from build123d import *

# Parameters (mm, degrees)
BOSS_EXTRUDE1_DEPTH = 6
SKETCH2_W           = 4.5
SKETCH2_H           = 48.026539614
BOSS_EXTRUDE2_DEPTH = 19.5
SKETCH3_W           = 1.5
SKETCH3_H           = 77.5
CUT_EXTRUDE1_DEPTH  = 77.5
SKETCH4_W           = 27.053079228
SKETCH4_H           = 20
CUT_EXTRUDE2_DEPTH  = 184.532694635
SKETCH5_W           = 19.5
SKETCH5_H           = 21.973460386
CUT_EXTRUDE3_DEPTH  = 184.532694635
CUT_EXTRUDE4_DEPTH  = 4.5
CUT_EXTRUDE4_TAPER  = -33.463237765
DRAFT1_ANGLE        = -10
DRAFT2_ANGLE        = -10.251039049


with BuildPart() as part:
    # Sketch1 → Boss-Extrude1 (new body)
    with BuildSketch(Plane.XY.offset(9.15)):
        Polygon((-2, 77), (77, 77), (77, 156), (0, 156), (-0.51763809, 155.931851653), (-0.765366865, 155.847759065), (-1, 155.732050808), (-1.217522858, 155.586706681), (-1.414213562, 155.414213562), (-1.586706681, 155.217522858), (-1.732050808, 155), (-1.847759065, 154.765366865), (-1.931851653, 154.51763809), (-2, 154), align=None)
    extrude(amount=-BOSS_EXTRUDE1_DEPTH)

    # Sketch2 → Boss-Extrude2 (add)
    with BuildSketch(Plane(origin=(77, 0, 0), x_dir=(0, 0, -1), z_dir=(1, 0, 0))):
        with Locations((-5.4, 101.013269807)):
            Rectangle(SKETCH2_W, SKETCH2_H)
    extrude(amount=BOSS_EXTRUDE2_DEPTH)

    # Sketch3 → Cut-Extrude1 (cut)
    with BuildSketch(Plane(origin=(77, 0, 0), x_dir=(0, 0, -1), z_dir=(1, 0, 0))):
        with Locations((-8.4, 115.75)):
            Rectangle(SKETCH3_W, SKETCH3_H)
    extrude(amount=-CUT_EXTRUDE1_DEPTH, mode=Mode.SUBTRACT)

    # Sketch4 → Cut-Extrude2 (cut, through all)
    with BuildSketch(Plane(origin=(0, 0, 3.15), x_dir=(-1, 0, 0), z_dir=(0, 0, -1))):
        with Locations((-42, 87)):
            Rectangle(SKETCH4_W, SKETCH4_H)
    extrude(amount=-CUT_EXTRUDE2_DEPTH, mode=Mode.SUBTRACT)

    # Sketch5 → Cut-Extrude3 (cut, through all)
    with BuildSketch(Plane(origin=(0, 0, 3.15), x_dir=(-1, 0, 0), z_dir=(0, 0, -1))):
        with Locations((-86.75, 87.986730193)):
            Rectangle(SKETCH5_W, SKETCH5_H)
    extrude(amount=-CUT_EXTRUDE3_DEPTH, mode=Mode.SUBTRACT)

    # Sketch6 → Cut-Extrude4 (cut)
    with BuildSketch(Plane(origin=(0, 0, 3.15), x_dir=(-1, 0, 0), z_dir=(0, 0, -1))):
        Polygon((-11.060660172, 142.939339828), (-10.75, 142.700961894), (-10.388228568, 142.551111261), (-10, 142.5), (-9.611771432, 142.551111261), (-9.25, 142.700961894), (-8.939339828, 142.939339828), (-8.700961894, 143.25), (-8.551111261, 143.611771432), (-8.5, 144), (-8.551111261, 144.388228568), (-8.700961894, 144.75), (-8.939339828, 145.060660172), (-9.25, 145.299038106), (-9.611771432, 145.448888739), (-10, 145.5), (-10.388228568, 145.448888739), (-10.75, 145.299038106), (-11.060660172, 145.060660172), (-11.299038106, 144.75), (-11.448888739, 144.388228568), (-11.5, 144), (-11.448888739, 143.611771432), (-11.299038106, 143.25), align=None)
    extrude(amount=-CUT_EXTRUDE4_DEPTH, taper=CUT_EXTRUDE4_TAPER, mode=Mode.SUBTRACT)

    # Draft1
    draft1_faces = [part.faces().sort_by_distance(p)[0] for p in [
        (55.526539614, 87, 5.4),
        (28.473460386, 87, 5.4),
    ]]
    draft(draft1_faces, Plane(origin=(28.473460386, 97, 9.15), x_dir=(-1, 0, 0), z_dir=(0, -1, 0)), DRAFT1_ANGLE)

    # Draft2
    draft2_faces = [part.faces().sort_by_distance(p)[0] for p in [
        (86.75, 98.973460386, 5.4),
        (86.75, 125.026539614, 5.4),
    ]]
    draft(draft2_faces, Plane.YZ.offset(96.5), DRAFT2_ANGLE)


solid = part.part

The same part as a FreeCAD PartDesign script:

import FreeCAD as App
import Part
import Sketcher
from FreeCAD import Vector
Q = App.Units.Quantity


def faces_at(feature, points):
    """Names of the faces that lie closest to the given points."""
    faces = feature.Shape.Faces
    near = lambda p: min(range(len(faces)), key=lambda i: faces[i].distToShape(Part.Vertex(*p))[0])
    return sorted({f"Face{near(p) + 1}" for p in points})

doc = App.newDocument("Part")
params = doc.addObject("Spreadsheet::Sheet", "Params")
for row, (alias, value) in enumerate([
    ("sketch1_width", "79 mm"),
    ("sketch1_width2", "77 mm"),
    ("pad1_length", "6 mm"),
    ("sketch2_height", "4.5 mm"),
    ("pad2_length", "19.5 mm"),
    ("sketch3_width", "77.5 mm"),
    ("sketch3_height", "1.5 mm"),
    ("pocket1_length", "77.5 mm"),
    ("sketch4_height", "20 mm"),
    ("sketch5_width", "19.5 mm"),
    ("pocket4_length", "4.5 mm"),
    ("pocket4_taper", "33.463238 deg"),
    ("draft_angle", "10 deg"),
    ("draft2_angle", "10.251039 deg"),
], start=1):
    params.set(f"A{row}", alias)
    params.set(f"B{row}", "=" + value)
    params.setAlias(f"B{row}", alias)

body = doc.addObject("PartDesign::Body", "Body")

# Sketch on XY plane
sketch1 = doc.addObject("Sketcher::SketchObject", "Sketch")
body.addObject(sketch1)
sketch1.AttachmentSupport = (doc.XY_Plane, [""])
sketch1.MapMode = "FlatFace"
sketch1.AttachmentOffset = App.Placement(Vector(0, 0, 9.15), App.Rotation())
sketch1.addGeometry([
    Part.LineSegment(Vector(-2, 77, 0), Vector(77, 77, 0)),  # 0
    Part.LineSegment(Vector(77, 77, 0), Vector(77, 156, 0)),  # 1
    Part.LineSegment(Vector(77, 156, 0), Vector(0, 156, 0)),  # 2
    Part.LineSegment(Vector(0, 156, 0), Vector(-0.52, 155.93, 0)),  # 3
    Part.LineSegment(Vector(-0.52, 155.93, 0), Vector(-0.77, 155.85, 0)),  # 4
    Part.LineSegment(Vector(-0.77, 155.85, 0), Vector(-1, 155.73, 0)),  # 5
    Part.LineSegment(Vector(-1, 155.73, 0), Vector(-1.22, 155.59, 0)),  # 6
    Part.LineSegment(Vector(-1.22, 155.59, 0), Vector(-1.41, 155.41, 0)),  # 7
    Part.LineSegment(Vector(-1.41, 155.41, 0), Vector(-1.59, 155.22, 0)),  # 8
    Part.LineSegment(Vector(-1.59, 155.22, 0), Vector(-1.73, 155, 0)),  # 9
    Part.LineSegment(Vector(-1.73, 155, 0), Vector(-1.85, 154.77, 0)),  # 10
    Part.LineSegment(Vector(-1.85, 154.77, 0), Vector(-1.93, 154.52, 0)),  # 11
    Part.LineSegment(Vector(-1.93, 154.52, 0), Vector(-2, 154, 0)),  # 12
    Part.LineSegment(Vector(-2, 154, 0), Vector(-2, 77, 0)),  # 13
], False)
sketch1.addConstraint([
    Sketcher.Constraint("Coincident", 0, 2, 1, 1),
    Sketcher.Constraint("Coincident", 1, 2, 2, 1),
    Sketcher.Constraint("Coincident", 2, 2, 3, 1),
    Sketcher.Constraint("Coincident", 3, 2, 4, 1),
    Sketcher.Constraint("Coincident", 4, 2, 5, 1),
    Sketcher.Constraint("Coincident", 5, 2, 6, 1),
    Sketcher.Constraint("Coincident", 6, 2, 7, 1),
    Sketcher.Constraint("Coincident", 7, 2, 8, 1),
    Sketcher.Constraint("Coincident", 8, 2, 9, 1),
    Sketcher.Constraint("Coincident", 9, 2, 10, 1),
    Sketcher.Constraint("Coincident", 10, 2, 11, 1),
    Sketcher.Constraint("Coincident", 11, 2, 12, 1),
    Sketcher.Constraint("Coincident", 12, 2, 13, 1),
    Sketcher.Constraint("Coincident", 13, 2, 0, 1),
    Sketcher.Constraint("Horizontal", 0),
    Sketcher.Constraint("Vertical", 1),
    Sketcher.Constraint("Horizontal", 2),
    Sketcher.Constraint("Vertical", 13),
    Sketcher.Constraint("PointOnObject", 2, 2, -2),
    Sketcher.Constraint("Equal", 0, 1),
    Sketcher.Constraint("Equal", 2, 13),
    Sketcher.Constraint("Equal", 4, 5),
    Sketcher.Constraint("Equal", 5, 6),
    Sketcher.Constraint("Equal", 6, 7),
    Sketcher.Constraint("Equal", 7, 8),
    Sketcher.Constraint("Equal", 8, 9),
    Sketcher.Constraint("Equal", 9, 10),
    Sketcher.Constraint("Equal", 10, 11),
    Sketcher.Constraint("Equal", 3, 12),
    Sketcher.Constraint("DistanceX", 0, 1, 0, 2, 79.0),
    Sketcher.Constraint("DistanceX", 2, 2, 2, 1, 77.0),
    Sketcher.Constraint("DistanceY", -1, 1, 0, 2, 77.0),
    Sketcher.Constraint("DistanceX", 5, 2, -1, 1, 1.0),
    Sketcher.Constraint("DistanceY", -1, 1, 9, 2, 155.0),
    Sketcher.Constraint("Angle", 3, Q("-172.5 deg")),
    Sketcher.Constraint("Angle", 12, Q("-97.5 deg")),
    Sketcher.Constraint("Angle", 4, Q("-161.25 deg")),
    Sketcher.Constraint("Angle", 5, Q("-153.75 deg")),
    Sketcher.Constraint("Angle", 6, Q("-146.25 deg")),
    Sketcher.Constraint("Angle", 7, Q("-138.75 deg")),
    Sketcher.Constraint("Angle", 8, Q("-131.25 deg")),
    Sketcher.Constraint("Angle", 9, Q("-123.75 deg")),
])
sketch1.setExpression("Constraints[29]", "Params.sketch1_width")
sketch1.setExpression("Constraints[30]", "Params.sketch1_width2")
pad1 = doc.addObject("PartDesign::Pad", "Pad")
body.addObject(pad1)
pad1.Profile = sketch1
pad1.setExpression("Length", "Params.pad1_length")
pad1.Reversed = True

# Sketch on YZ plane
sketch2 = doc.addObject("Sketcher::SketchObject", "Sketch001")
body.addObject(sketch2)
sketch2.AttachmentSupport = (doc.YZ_Plane, [""])
sketch2.MapMode = "FlatFace"
sketch2.AttachmentOffset = App.Placement(Vector(0, 0, 77), App.Rotation())
sketch2.addGeometry([
    Part.LineSegment(Vector(125, 7.7, 0), Vector(77, 7.7, 0)),
    Part.LineSegment(Vector(77, 7.7, 0), Vector(77, 3.1, 0)),
    Part.LineSegment(Vector(77, 3.1, 0), Vector(125, 3.1, 0)),
    Part.LineSegment(Vector(125, 3.1, 0), Vector(125, 7.7, 0)),
], False)
sketch2.addConstraint([
    Sketcher.Constraint("Coincident", 0, 2, 1, 1),
    Sketcher.Constraint("Coincident", 1, 2, 2, 1),
    Sketcher.Constraint("Coincident", 2, 2, 3, 1),
    Sketcher.Constraint("Coincident", 3, 2, 0, 1),
    Sketcher.Constraint("Horizontal", 0),
    Sketcher.Constraint("Vertical", 1),
    Sketcher.Constraint("Horizontal", 2),
    Sketcher.Constraint("Vertical", 3),
    Sketcher.Constraint("DistanceY", 1, 2, 1, 1, 4.5),
    Sketcher.Constraint("DistanceX", -1, 1, 0, 2, 77.0),
    Sketcher.Constraint("DistanceY", -1, 1, 0, 2, 7.65),
    Sketcher.Constraint("DistanceX", 0, 2, 0, 1, 48.02654),
])
sketch2.setExpression("Constraints[8]", "Params.sketch2_height")
pad2 = doc.addObject("PartDesign::Pad", "Pad001")
body.addObject(pad2)
pad2.Profile = sketch2
pad2.setExpression("Length", "Params.pad2_length")

# Sketch on YZ plane
sketch3 = doc.addObject("Sketcher::SketchObject", "Sketch002")
body.addObject(sketch3)
sketch3.AttachmentSupport = (doc.YZ_Plane, [""])
sketch3.MapMode = "FlatFace"
sketch3.AttachmentOffset = App.Placement(Vector(0, 0, 77), App.Rotation())
sketch3.addGeometry([
    Part.LineSegment(Vector(154.5, 9.2, 0), Vector(77, 9.2, 0)),
    Part.LineSegment(Vector(77, 9.2, 0), Vector(77, 7.7, 0)),
    Part.LineSegment(Vector(77, 7.7, 0), Vector(154.5, 7.7, 0)),
    Part.LineSegment(Vector(154.5, 7.7, 0), Vector(154.5, 9.2, 0)),
], False)
sketch3.addConstraint([
    Sketcher.Constraint("Coincident", 0, 2, 1, 1),
    Sketcher.Constraint("Coincident", 1, 2, 2, 1),
    Sketcher.Constraint("Coincident", 2, 2, 3, 1),
    Sketcher.Constraint("Coincident", 3, 2, 0, 1),
    Sketcher.Constraint("Horizontal", 0),
    Sketcher.Constraint("Vertical", 1),
    Sketcher.Constraint("Horizontal", 2),
    Sketcher.Constraint("Vertical", 3),
    Sketcher.Constraint("DistanceX", 0, 2, 0, 1, 77.5),
    Sketcher.Constraint("DistanceY", 1, 2, 1, 1, 1.5),
    Sketcher.Constraint("DistanceX", -1, 1, 0, 2, 77.0),
    Sketcher.Constraint("DistanceY", -1, 1, 0, 2, 9.15),
])
sketch3.setExpression("Constraints[8]", "Params.sketch3_width")
sketch3.setExpression("Constraints[9]", "Params.sketch3_height")
pocket1 = doc.addObject("PartDesign::Pocket", "Pocket")
body.addObject(pocket1)
pocket1.Profile = sketch3
pocket1.setExpression("Length", "Params.pocket1_length")

# Sketch on XY plane
sketch4 = doc.addObject("Sketcher::SketchObject", "Sketch003")
body.addObject(sketch4)
sketch4.AttachmentSupport = (doc.XY_Plane, [""])
sketch4.MapMode = "FlatFace"
sketch4.AttachmentOffset = App.Placement(Vector(0, 0, 3.15), App.Rotation())
sketch4.addGeometry([
    Part.LineSegment(Vector(56, 97, 0), Vector(56, 77, 0)),
    Part.LineSegment(Vector(56, 77, 0), Vector(28, 77, 0)),
    Part.LineSegment(Vector(28, 77, 0), Vector(28, 97, 0)),
    Part.LineSegment(Vector(28, 97, 0), Vector(56, 97, 0)),
], False)
sketch4.addConstraint([
    Sketcher.Constraint("Coincident", 0, 2, 1, 1),
    Sketcher.Constraint("Coincident", 1, 2, 2, 1),
    Sketcher.Constraint("Coincident", 2, 2, 3, 1),
    Sketcher.Constraint("Coincident", 3, 2, 0, 1),
    Sketcher.Constraint("Vertical", 0),
    Sketcher.Constraint("Horizontal", 1),
    Sketcher.Constraint("Vertical", 2),
    Sketcher.Constraint("Horizontal", 3),
    Sketcher.Constraint("DistanceY", 0, 2, 0, 1, 20.0),
    Sketcher.Constraint("DistanceY", -1, 1, 0, 2, 77.0),
    Sketcher.Constraint("DistanceX", 1, 2, 1, 1, 27.053079),
    Sketcher.Constraint("DistanceX", -1, 1, 0, 2, 55.52654),
])
sketch4.setExpression("Constraints[8]", "Params.sketch4_height")
pocket2 = doc.addObject("PartDesign::Pocket", "Pocket001")
body.addObject(pocket2)
pocket2.Profile = sketch4
pocket2.Type = "ThroughAll"
pocket2.Reversed = True

# Sketch on XY plane
sketch5 = doc.addObject("Sketcher::SketchObject", "Sketch004")
body.addObject(sketch5)
sketch5.AttachmentSupport = (doc.XY_Plane, [""])
sketch5.MapMode = "FlatFace"
sketch5.AttachmentOffset = App.Placement(Vector(0, 0, 3.15), App.Rotation())
sketch5.addGeometry([
    Part.LineSegment(Vector(96, 99, 0), Vector(96, 77, 0)),
    Part.LineSegment(Vector(96, 77, 0), Vector(77, 77, 0)),
    Part.LineSegment(Vector(77, 77, 0), Vector(77, 99, 0)),
    Part.LineSegment(Vector(77, 99, 0), Vector(96, 99, 0)),
], False)
sketch5.addConstraint([
    Sketcher.Constraint("Coincident", 0, 2, 1, 1),
    Sketcher.Constraint("Coincident", 1, 2, 2, 1),
    Sketcher.Constraint("Coincident", 2, 2, 3, 1),
    Sketcher.Constraint("Coincident", 3, 2, 0, 1),
    Sketcher.Constraint("Vertical", 0),
    Sketcher.Constraint("Horizontal", 1),
    Sketcher.Constraint("Vertical", 2),
    Sketcher.Constraint("Horizontal", 3),
    Sketcher.Constraint("DistanceX", 1, 2, 1, 1, 19.5),
    Sketcher.Constraint("DistanceY", -1, 1, 0, 2, 77.0),
    Sketcher.Constraint("DistanceX", -1, 1, 1, 2, 77.0),
    Sketcher.Constraint("DistanceY", 0, 2, 0, 1, 21.97346),
])
sketch5.setExpression("Constraints[8]", "Params.sketch5_width")
pocket3 = doc.addObject("PartDesign::Pocket", "Pocket002")
body.addObject(pocket3)
pocket3.Profile = sketch5
pocket3.Type = "ThroughAll"
pocket3.Reversed = True

# Sketch on XY plane
sketch6 = doc.addObject("Sketcher::SketchObject", "Sketch005")
body.addObject(sketch6)
sketch6.AttachmentSupport = (doc.XY_Plane, [""])
sketch6.MapMode = "FlatFace"
sketch6.AttachmentOffset = App.Placement(Vector(0, 0, 3.15), App.Rotation())
sketch6.addGeometry([
    Part.LineSegment(Vector(11.06, 142.94, 0), Vector(10.75, 142.7, 0)),  # 0
    Part.LineSegment(Vector(10.75, 142.7, 0), Vector(10.39, 142.55, 0)),  # 1
    Part.LineSegment(Vector(10.39, 142.55, 0), Vector(10, 142.5, 0)),  # 2
    Part.LineSegment(Vector(10, 142.5, 0), Vector(9.61, 142.55, 0)),  # 3
    Part.LineSegment(Vector(9.61, 142.55, 0), Vector(9.25, 142.7, 0)),  # 4
    Part.LineSegment(Vector(9.25, 142.7, 0), Vector(8.94, 142.94, 0)),  # 5
    Part.LineSegment(Vector(8.94, 142.94, 0), Vector(8.7, 143.25, 0)),  # 6
    Part.LineSegment(Vector(8.7, 143.25, 0), Vector(8.55, 143.61, 0)),  # 7
    Part.LineSegment(Vector(8.55, 143.61, 0), Vector(8.5, 144, 0)),  # 8
    Part.LineSegment(Vector(8.5, 144, 0), Vector(8.55, 144.39, 0)),  # 9
    Part.LineSegment(Vector(8.55, 144.39, 0), Vector(8.7, 144.75, 0)),  # 10
    Part.LineSegment(Vector(8.7, 144.75, 0), Vector(8.94, 145.06, 0)),  # 11
    Part.LineSegment(Vector(8.94, 145.06, 0), Vector(9.25, 145.3, 0)),  # 12
    Part.LineSegment(Vector(9.25, 145.3, 0), Vector(9.61, 145.45, 0)),  # 13
    Part.LineSegment(Vector(9.61, 145.45, 0), Vector(10, 145.5, 0)),  # 14
    Part.LineSegment(Vector(10, 145.5, 0), Vector(10.39, 145.45, 0)),  # 15
    Part.LineSegment(Vector(10.39, 145.45, 0), Vector(10.75, 145.3, 0)),  # 16
    Part.LineSegment(Vector(10.75, 145.3, 0), Vector(11.06, 145.06, 0)),  # 17
    Part.LineSegment(Vector(11.06, 145.06, 0), Vector(11.3, 144.75, 0)),  # 18
    Part.LineSegment(Vector(11.3, 144.75, 0), Vector(11.45, 144.39, 0)),  # 19
    Part.LineSegment(Vector(11.45, 144.39, 0), Vector(11.5, 144, 0)),  # 20
    Part.LineSegment(Vector(11.5, 144, 0), Vector(11.45, 143.61, 0)),  # 21
    Part.LineSegment(Vector(11.45, 143.61, 0), Vector(11.3, 143.25, 0)),  # 22
    Part.LineSegment(Vector(11.3, 143.25, 0), Vector(11.06, 142.94, 0)),  # 23
], False)
sketch6.addConstraint([
    Sketcher.Constraint("Coincident", 0, 2, 1, 1),
    Sketcher.Constraint("Coincident", 1, 2, 2, 1),
    Sketcher.Constraint("Coincident", 2, 2, 3, 1),
    Sketcher.Constraint("Coincident", 3, 2, 4, 1),
    Sketcher.Constraint("Coincident", 4, 2, 5, 1),
    Sketcher.Constraint("Coincident", 5, 2, 6, 1),
    Sketcher.Constraint("Coincident", 6, 2, 7, 1),
    Sketcher.Constraint("Coincident", 7, 2, 8, 1),
    Sketcher.Constraint("Coincident", 8, 2, 9, 1),
    Sketcher.Constraint("Coincident", 9, 2, 10, 1),
    Sketcher.Constraint("Coincident", 10, 2, 11, 1),
    Sketcher.Constraint("Coincident", 11, 2, 12, 1),
    Sketcher.Constraint("Coincident", 12, 2, 13, 1),
    Sketcher.Constraint("Coincident", 13, 2, 14, 1),
    Sketcher.Constraint("Coincident", 14, 2, 15, 1),
    Sketcher.Constraint("Coincident", 15, 2, 16, 1),
    Sketcher.Constraint("Coincident", 16, 2, 17, 1),
    Sketcher.Constraint("Coincident", 17, 2, 18, 1),
    Sketcher.Constraint("Coincident", 18, 2, 19, 1),
    Sketcher.Constraint("Coincident", 19, 2, 20, 1),
    Sketcher.Constraint("Coincident", 20, 2, 21, 1),
    Sketcher.Constraint("Coincident", 21, 2, 22, 1),
    Sketcher.Constraint("Coincident", 22, 2, 23, 1),
    Sketcher.Constraint("Coincident", 23, 2, 0, 1),
    Sketcher.Constraint("Perpendicular", 0, 6),
    Sketcher.Constraint("Perpendicular", 1, 7),
    Sketcher.Constraint("Perpendicular", 2, 8),
    Sketcher.Constraint("Perpendicular", 3, 9),
    Sketcher.Constraint("Perpendicular", 4, 10),
    Sketcher.Constraint("Perpendicular", 5, 11),
    Sketcher.Constraint("Perpendicular", 6, 12),
    Sketcher.Constraint("Perpendicular", 7, 13),
    Sketcher.Constraint("Perpendicular", 8, 14),
    Sketcher.Constraint("Perpendicular", 9, 15),
    Sketcher.Constraint("Perpendicular", 10, 16),
    Sketcher.Constraint("Perpendicular", 11, 17),
    Sketcher.Constraint("Perpendicular", 12, 18),
    Sketcher.Constraint("Perpendicular", 13, 19),
    Sketcher.Constraint("Perpendicular", 14, 20),
    Sketcher.Constraint("Perpendicular", 15, 21),
    Sketcher.Constraint("Perpendicular", 16, 22),
    Sketcher.Constraint("Perpendicular", 17, 23),
    Sketcher.Constraint("Horizontal", 1, 2, 3, 2),
    Sketcher.Constraint("Horizontal", 0, 2, 4, 2),
    Sketcher.Constraint("Horizontal", 13, 2, 15, 2),
    Sketcher.Constraint("Horizontal", 12, 2, 16, 2),
    Sketcher.Constraint("Horizontal", 11, 2, 17, 2),
    Sketcher.Constraint("Horizontal", 10, 2, 18, 2),
    Sketcher.Constraint("Horizontal", 9, 2, 19, 2),
    Sketcher.Constraint("Horizontal", 8, 2, 20, 2),
    Sketcher.Constraint("Horizontal", 7, 2, 21, 2),
    Sketcher.Constraint("Horizontal", 6, 2, 22, 2),
    Sketcher.Constraint("Horizontal", 5, 2, 23, 2),
    Sketcher.Constraint("Vertical", 7, 2, 9, 2),
    Sketcher.Constraint("Vertical", 6, 2, 10, 2),
    Sketcher.Constraint("Vertical", 5, 2, 11, 2),
    Sketcher.Constraint("Vertical", 4, 2, 12, 2),
    Sketcher.Constraint("Vertical", 3, 2, 13, 2),
    Sketcher.Constraint("Vertical", 2, 2, 14, 2),
    Sketcher.Constraint("Vertical", 1, 2, 15, 2),
    Sketcher.Constraint("Vertical", 0, 2, 16, 2),
    Sketcher.Constraint("Equal", 0, 1),
    Sketcher.Constraint("Equal", 1, 2),
    Sketcher.Constraint("Equal", 5, 6),
    Sketcher.Constraint("Equal", 6, 7),
    Sketcher.Constraint("Equal", 7, 8),
    Sketcher.Constraint("DistanceX", -1, 1, 2, 2, 10.0),
    Sketcher.Constraint("DistanceY", -1, 1, 8, 2, 144.0),
    Sketcher.Constraint("Angle", 0, Q("-142.5 deg")),
    Sketcher.Constraint("Angle", 1, Q("-157.5 deg")),
    Sketcher.Constraint("Angle", 2, Q("-172.5 deg")),
    Sketcher.Constraint("DistanceY", -1, 1, 2, 2, 142.5),
])
pocket4 = doc.addObject("PartDesign::Pocket", "Pocket003")
body.addObject(pocket4)
pocket4.Profile = sketch6
pocket4.setExpression("Length", "Params.pocket4_length")
pocket4.Reversed = True
pocket4.setExpression("TaperAngle", "Params.pocket4_taper")
doc.recompute()

datumplane = doc.addObject("PartDesign::Plane", "DatumPlane")
body.addObject(datumplane)
datumplane.AttachmentSupport = (doc.XZ_Plane, [""])
datumplane.MapMode = "FlatFace"
datumplane.AttachmentOffset = App.Placement(Vector(0, 0, -97), App.Rotation())
draft = doc.addObject("PartDesign::Draft", "Draft")
body.addObject(draft)
draft.Base = (pocket4, faces_at(pocket4, [(55.527, 87, 5.4), (28.473, 87, 5.4)]))
draft.NeutralPlane = (datumplane, [""])
draft.setExpression("Angle", "Params.draft_angle")
draft.Reversed = True
doc.recompute()

datumplane2 = doc.addObject("PartDesign::Plane", "DatumPlane001")
body.addObject(datumplane2)
datumplane2.AttachmentSupport = (doc.YZ_Plane, [""])
datumplane2.MapMode = "FlatFace"
datumplane2.AttachmentOffset = App.Placement(Vector(0, 0, 96.5), App.Rotation())
draft2 = doc.addObject("PartDesign::Draft", "Draft001")
body.addObject(draft2)
draft2.Base = (draft, faces_at(draft, [(86.75, 98.973, 5.4), (86.75, 125.027, 5.4)]))
draft2.NeutralPlane = (datumplane2, [""])
draft2.setExpression("Angle", "Params.draft2_angle")
draft2.Reversed = True

doc.recompute()
